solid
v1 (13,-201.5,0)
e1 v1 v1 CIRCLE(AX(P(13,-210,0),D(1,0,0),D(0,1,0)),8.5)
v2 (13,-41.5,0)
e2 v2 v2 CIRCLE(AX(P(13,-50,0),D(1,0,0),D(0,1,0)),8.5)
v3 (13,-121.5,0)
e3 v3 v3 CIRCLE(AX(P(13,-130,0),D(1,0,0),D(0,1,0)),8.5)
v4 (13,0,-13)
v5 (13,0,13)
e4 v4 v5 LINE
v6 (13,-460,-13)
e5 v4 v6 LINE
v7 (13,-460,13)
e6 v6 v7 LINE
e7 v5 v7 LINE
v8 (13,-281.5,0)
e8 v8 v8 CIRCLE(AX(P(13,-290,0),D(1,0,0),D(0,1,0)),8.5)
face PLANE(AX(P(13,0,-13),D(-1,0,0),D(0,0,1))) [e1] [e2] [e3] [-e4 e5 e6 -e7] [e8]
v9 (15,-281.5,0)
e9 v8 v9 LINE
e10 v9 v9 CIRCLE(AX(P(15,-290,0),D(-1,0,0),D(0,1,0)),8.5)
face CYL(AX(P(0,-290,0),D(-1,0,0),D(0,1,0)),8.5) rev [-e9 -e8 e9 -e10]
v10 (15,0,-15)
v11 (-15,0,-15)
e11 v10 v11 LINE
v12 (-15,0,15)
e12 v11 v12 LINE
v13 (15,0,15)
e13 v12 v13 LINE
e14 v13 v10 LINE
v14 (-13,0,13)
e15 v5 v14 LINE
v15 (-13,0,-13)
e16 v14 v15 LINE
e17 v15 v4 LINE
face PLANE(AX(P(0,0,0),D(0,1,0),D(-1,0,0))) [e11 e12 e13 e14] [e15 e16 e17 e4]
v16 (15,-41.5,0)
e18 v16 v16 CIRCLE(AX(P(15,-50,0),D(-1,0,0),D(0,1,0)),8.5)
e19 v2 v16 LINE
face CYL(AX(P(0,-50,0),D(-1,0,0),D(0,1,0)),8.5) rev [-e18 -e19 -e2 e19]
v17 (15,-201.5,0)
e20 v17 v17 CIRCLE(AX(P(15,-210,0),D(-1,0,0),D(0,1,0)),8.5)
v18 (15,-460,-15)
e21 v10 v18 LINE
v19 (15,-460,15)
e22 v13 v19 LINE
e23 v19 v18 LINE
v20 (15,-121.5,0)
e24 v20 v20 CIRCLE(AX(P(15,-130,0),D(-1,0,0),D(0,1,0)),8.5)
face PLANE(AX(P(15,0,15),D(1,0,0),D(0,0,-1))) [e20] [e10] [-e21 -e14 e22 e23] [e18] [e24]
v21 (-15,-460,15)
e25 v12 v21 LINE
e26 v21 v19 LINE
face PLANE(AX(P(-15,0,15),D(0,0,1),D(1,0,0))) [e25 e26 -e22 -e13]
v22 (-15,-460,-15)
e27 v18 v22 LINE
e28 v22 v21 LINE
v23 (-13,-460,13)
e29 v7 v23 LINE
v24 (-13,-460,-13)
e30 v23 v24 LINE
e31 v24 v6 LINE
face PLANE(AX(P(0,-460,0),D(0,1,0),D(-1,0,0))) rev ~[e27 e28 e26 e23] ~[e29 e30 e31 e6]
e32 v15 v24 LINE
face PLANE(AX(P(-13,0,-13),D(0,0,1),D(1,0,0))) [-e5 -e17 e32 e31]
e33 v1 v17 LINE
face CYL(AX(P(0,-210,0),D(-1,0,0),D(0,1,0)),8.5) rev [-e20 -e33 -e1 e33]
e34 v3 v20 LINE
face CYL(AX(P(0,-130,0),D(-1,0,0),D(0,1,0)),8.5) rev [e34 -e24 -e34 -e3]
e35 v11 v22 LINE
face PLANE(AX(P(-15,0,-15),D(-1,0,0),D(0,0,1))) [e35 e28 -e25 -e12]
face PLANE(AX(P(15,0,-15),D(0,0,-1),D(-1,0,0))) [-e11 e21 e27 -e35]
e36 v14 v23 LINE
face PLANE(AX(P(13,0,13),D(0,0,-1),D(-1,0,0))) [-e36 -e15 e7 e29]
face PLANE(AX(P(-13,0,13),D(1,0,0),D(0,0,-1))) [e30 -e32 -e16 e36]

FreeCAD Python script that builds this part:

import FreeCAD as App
import Part
import Sketcher
Q = App.Units.Quantity


def add_polygon(sketch, points):
    """Adds a closed chain of lines whose ends are joined by coincident constraints."""
    first, n = sketch.GeometryCount, len(points)
    for a, b in zip(points, points[1:] + points[:1]):
        sketch.addGeometry(Part.LineSegment(App.Vector(*a, 0), App.Vector(*b, 0)), False)
    for i in range(n):
        sketch.addConstraint(Sketcher.Constraint("Coincident", first + i, 2, first + (i + 1) % n, 1))

doc = App.newDocument("Part")
body = doc.addObject("PartDesign::Body", "Body")

# Sketch on XZ plane
sketch1 = body.newObject("Sketcher::SketchObject", "Sketch")
sketch1.AttachmentSupport = (doc.getObject("XZ_Plane"), [""])
sketch1.MapMode = "FlatFace"
add_polygon(sketch1, [(-15, -15), (-15, 15), (15, 15), (15, -15)])  # lines 0-3
add_polygon(sketch1, [(13, -13), (13, 13), (-13, 13), (-13, -13)])  # lines 4-7
sketch1.addConstraint(Sketcher.Constraint("Vertical", 0))
sketch1.addConstraint(Sketcher.Constraint("Horizontal", 1))
sketch1.addConstraint(Sketcher.Constraint("Vertical", 2))
sketch1.addConstraint(Sketcher.Constraint("Horizontal", 3))
sketch1.addConstraint(Sketcher.Constraint("Vertical", 4))
sketch1.addConstraint(Sketcher.Constraint("Horizontal", 5))
sketch1.addConstraint(Sketcher.Constraint("Vertical", 6))
sketch1.addConstraint(Sketcher.Constraint("Horizontal", 7))
sketch1.addConstraint(Sketcher.Constraint("Symmetric", 0, 2, 2, 2, -1, 1))
sketch1.addConstraint(Sketcher.Constraint("Symmetric", 4, 2, 6, 2, -1, 1))
sketch1.addConstraint(Sketcher.Constraint("Equal", 3, 0))
sketch1.addConstraint(Sketcher.Constraint("Equal", 7, 4))
sketch1.addConstraint(Sketcher.Constraint("DistanceX", 1, 1, 1, 2, Q("30 mm")))
sketch1.addConstraint(Sketcher.Constraint("DistanceX", 4, 2, 1, 2, Q("2 mm")))
pad1 = body.newObject("PartDesign::Pad", "Pad")
pad1.Profile = sketch1
pad1.Length = 460

# Sketch on YZ plane
sketch2 = body.newObject("Sketcher::SketchObject", "Sketch001")
sketch2.AttachmentSupport = (doc.getObject("YZ_Plane"), [""])
sketch2.MapMode = "FlatFace"
sketch2.addGeometry(Part.Circle(App.Vector(-50, 0, 0), App.Vector(0, 0, 1), 8.5), False)
sketch2.addConstraint(Sketcher.Constraint("PointOnObject", 0, 3, -1))
sketch2.addConstraint(Sketcher.Constraint("Diameter", 0, Q("17 mm")))
sketch2.addConstraint(Sketcher.Constraint("DistanceX", 0, 3, -1, 1, Q("50 mm")))
pocket1 = body.newObject("PartDesign::Pocket", "Pocket")
pocket1.Profile = sketch2
pocket1.Type = "ThroughAll"
pocket1.Reversed = True
doc.recompute()

linearpattern = body.newObject("PartDesign::LinearPattern", "LinearPattern")
linearpattern.Originals = [pocket1]
linearpattern.Direction = (doc.getObject("Y_Axis"), [""])
linearpattern.Mode = "offset"
linearpattern.Offset = 80
linearpattern.Occurrences = 4
linearpattern.Reversed = True
body.Tip = linearpattern

doc.recompute()
